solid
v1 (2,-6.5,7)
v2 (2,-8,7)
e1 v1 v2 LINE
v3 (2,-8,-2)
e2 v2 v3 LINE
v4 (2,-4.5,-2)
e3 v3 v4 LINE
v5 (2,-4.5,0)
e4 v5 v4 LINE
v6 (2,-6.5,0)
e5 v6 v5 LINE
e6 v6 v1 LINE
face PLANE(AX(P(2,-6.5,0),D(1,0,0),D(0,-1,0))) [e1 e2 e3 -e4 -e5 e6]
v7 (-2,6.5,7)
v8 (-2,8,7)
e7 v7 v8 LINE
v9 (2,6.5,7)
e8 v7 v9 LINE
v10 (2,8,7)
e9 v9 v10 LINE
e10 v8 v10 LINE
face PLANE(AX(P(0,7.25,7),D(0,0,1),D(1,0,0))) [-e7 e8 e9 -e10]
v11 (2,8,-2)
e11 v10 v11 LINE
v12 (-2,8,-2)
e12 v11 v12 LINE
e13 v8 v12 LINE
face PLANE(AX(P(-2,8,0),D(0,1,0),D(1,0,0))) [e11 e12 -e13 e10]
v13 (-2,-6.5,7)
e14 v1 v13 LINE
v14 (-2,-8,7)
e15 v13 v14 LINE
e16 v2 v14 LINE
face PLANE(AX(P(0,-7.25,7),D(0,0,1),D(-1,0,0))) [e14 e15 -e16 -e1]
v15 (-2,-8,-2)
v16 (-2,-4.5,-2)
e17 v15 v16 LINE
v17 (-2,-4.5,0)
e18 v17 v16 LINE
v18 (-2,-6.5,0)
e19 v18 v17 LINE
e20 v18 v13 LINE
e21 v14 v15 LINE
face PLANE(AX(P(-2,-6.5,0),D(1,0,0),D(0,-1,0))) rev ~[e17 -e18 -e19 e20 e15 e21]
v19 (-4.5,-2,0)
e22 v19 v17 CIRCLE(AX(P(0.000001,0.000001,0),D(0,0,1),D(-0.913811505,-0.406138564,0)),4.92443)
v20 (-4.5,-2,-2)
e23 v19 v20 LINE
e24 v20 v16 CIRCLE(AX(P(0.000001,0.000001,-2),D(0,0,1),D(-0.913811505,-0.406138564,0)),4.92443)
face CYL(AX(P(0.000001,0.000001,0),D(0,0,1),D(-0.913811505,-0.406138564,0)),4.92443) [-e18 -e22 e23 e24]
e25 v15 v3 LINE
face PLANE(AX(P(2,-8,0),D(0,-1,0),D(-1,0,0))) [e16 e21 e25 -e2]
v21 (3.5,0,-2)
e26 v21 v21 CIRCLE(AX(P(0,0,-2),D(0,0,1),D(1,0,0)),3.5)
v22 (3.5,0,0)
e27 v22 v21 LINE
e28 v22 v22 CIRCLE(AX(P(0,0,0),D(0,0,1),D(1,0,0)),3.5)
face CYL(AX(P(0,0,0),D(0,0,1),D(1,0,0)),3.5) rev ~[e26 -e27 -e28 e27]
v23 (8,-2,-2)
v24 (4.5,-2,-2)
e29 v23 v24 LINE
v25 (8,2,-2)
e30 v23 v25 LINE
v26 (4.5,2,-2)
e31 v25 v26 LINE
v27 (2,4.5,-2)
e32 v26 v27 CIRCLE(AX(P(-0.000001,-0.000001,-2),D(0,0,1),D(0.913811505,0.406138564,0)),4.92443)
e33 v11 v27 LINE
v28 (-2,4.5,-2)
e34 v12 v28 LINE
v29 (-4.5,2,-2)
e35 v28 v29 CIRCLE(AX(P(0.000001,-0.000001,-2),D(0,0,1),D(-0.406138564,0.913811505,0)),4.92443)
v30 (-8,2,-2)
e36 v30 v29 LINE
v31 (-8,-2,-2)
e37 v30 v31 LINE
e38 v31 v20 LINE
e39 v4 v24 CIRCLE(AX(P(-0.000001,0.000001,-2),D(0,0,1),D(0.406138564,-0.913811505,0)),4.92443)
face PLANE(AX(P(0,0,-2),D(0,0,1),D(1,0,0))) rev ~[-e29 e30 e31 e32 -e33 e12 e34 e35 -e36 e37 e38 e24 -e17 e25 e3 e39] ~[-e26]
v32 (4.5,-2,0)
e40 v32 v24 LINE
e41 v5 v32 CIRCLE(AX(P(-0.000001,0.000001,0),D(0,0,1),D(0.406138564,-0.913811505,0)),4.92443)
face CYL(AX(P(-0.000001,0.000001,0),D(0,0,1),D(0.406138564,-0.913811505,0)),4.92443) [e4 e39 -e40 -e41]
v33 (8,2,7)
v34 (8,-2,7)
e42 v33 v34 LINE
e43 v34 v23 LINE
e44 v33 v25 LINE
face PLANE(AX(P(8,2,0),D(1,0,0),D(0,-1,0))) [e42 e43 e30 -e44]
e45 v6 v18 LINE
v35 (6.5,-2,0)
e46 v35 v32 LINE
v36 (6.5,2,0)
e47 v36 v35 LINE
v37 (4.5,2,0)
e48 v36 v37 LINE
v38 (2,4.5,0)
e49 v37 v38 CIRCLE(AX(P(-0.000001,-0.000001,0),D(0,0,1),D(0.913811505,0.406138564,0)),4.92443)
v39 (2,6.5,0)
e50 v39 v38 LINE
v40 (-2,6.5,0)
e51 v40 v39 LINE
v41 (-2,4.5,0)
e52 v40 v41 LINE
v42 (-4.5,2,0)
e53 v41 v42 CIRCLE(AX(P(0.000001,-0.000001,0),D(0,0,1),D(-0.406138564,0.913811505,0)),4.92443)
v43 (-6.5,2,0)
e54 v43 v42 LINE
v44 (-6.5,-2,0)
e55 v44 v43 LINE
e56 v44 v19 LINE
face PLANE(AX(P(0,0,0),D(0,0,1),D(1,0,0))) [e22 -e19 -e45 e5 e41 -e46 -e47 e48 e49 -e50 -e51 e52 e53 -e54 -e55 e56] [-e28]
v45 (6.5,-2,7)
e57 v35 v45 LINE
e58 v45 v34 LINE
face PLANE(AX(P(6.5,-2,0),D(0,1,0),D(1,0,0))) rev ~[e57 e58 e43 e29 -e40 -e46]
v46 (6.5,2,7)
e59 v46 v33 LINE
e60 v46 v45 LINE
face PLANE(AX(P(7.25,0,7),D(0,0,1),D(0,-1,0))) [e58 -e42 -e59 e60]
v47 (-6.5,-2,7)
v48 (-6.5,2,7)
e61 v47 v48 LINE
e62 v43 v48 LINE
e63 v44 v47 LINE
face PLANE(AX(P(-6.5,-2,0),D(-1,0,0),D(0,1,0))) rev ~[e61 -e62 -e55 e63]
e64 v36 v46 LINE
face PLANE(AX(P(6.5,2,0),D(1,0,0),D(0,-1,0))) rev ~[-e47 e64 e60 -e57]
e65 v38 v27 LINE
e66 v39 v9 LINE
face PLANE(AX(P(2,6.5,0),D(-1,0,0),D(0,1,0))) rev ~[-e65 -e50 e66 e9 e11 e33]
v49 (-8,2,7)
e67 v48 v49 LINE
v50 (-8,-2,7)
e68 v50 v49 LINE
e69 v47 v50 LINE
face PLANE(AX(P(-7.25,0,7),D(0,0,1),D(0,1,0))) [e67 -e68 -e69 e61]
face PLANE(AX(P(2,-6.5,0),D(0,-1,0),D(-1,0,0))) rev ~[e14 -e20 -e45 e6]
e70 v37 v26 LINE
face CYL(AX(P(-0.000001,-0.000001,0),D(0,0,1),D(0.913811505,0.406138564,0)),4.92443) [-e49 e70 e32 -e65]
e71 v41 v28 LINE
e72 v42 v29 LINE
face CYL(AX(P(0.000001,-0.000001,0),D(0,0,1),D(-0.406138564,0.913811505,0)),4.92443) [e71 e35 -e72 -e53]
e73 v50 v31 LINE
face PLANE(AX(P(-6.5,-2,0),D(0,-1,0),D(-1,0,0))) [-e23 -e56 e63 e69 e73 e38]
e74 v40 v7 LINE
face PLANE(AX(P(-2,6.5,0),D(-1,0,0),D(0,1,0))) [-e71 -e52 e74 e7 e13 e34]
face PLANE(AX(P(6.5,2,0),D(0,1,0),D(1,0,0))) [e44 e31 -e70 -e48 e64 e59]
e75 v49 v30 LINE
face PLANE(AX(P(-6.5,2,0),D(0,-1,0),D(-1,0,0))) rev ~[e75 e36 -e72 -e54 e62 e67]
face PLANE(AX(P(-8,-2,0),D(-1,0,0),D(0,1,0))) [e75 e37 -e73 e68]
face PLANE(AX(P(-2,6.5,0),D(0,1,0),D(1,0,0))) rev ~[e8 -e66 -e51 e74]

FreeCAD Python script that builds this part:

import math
import FreeCAD as App
import Part
import Sketcher

V = App.Vector


def add_polygon(sketch, points):
    """Adds a closed chain of lines whose ends are joined by coincident constraints."""
    first, n = sketch.GeometryCount, len(points)
    for a, b in zip(points, points[1:] + points[:1]):
        sketch.addGeometry(Part.LineSegment(App.Vector(*a, 0), App.Vector(*b, 0)), False)
    for i in range(n):
        sketch.addConstraint(Sketcher.Constraint("Coincident", first + i, 2, first + (i + 1) % n, 1))

doc = App.newDocument("Part")
body = doc.addObject("PartDesign::Body", "Body")

# Sketch on XY plane
sketch1 = body.newObject("Sketcher::SketchObject", "Sketch")
sketch1.AttachmentSupport = (doc.getObject("XY_Plane"), [""])
sketch1.MapMode = "FlatFace"
sketch1.addGeometry(Part.LineSegment(V(-8, 2, 0), V(-8, -2, 0)), False)
sketch1.addGeometry(Part.LineSegment(V(-8, -2, 0), V(-4.5, -2, 0)), False)
sketch1.addGeometry(Part.ArcOfCircle(Part.Circle(V(0, 0, 0), V(0, 0, 1), 4.9), math.radians(-156), math.radians(-114)), False)
sketch1.addGeometry(Part.LineSegment(V(-2, -4.5, 0), V(-2, -8, 0)), False)
sketch1.addGeometry(Part.LineSegment(V(-2, -8, 0), V(2, -8, 0)), False)
sketch1.addGeometry(Part.LineSegment(V(2, -8, 0), V(2, -4.5, 0)), False)
sketch1.addGeometry(Part.ArcOfCircle(Part.Circle(V(0, 0, 0), V(0, 0, 1), 4.9), math.radians(-66), math.radians(-24)), False)
sketch1.addGeometry(Part.LineSegment(V(4.5, -2, 0), V(8, -2, 0)), False)
sketch1.addGeometry(Part.LineSegment(V(8, -2, 0), V(8, 2, 0)), False)
sketch1.addGeometry(Part.LineSegment(V(8, 2, 0), V(4.5, 2, 0)), False)
sketch1.addGeometry(Part.ArcOfCircle(Part.Circle(V(0, 0, 0), V(0, 0, 1), 4.9), math.radians(24), math.radians(66)), False)
sketch1.addGeometry(Part.LineSegment(V(2, 4.5, 0), V(2, 8, 0)), False)
sketch1.addGeometry(Part.LineSegment(V(2, 8, 0), V(-2, 8, 0)), False)
sketch1.addGeometry(Part.LineSegment(V(-2, 8, 0), V(-2, 4.5, 0)), False)
sketch1.addGeometry(Part.ArcOfCircle(Part.Circle(V(0, 0, 0), V(0, 0, 1), 4.9), math.radians(114), math.radians(156)), False)
sketch1.addGeometry(Part.LineSegment(V(-4.5, 2, 0), V(-8, 2, 0)), False)
sketch1.addGeometry(Part.Circle(V(0, 0, 0), V(0, 0, 1), 3.5), False)
sketch1.addConstraint(Sketcher.Constraint("Coincident", 0, 2, 1, 1))
sketch1.addConstraint(Sketcher.Constraint("Coincident", 1, 2, 2, 1))
sketch1.addConstraint(Sketcher.Constraint("Coincident", 2, 2, 3, 1))
sketch1.addConstraint(Sketcher.Constraint("Coincident", 3, 2, 4, 1))
sketch1.addConstraint(Sketcher.Constraint("Coincident", 4, 2, 5, 1))
sketch1.addConstraint(Sketcher.Constraint("Coincident", 5, 2, 6, 1))
sketch1.addConstraint(Sketcher.Constraint("Coincident", 6, 2, 7, 1))
sketch1.addConstraint(Sketcher.Constraint("Coincident", 7, 2, 8, 1))
sketch1.addConstraint(Sketcher.Constraint("Coincident", 8, 2, 9, 1))
sketch1.addConstraint(Sketcher.Constraint("Coincident", 9, 2, 10, 1))
sketch1.addConstraint(Sketcher.Constraint("Coincident", 10, 2, 11, 1))
sketch1.addConstraint(Sketcher.Constraint("Coincident", 11, 2, 12, 1))
sketch1.addConstraint(Sketcher.Constraint("Coincident", 12, 2, 13, 1))
sketch1.addConstraint(Sketcher.Constraint("Coincident", 13, 2, 14, 1))
sketch1.addConstraint(Sketcher.Constraint("Coincident", 14, 2, 15, 1))
sketch1.addConstraint(Sketcher.Constraint("Coincident", 15, 2, 0, 1))
sketch1.addConstraint(Sketcher.Constraint("Vertical", 0))
sketch1.addConstraint(Sketcher.Constraint("Horizontal", 1))
sketch1.addConstraint(Sketcher.Constraint("Vertical", 3))
sketch1.addConstraint(Sketcher.Constraint("Horizontal", 4))
sketch1.addConstraint(Sketcher.Constraint("Vertical", 5))
sketch1.addConstraint(Sketcher.Constraint("Horizontal", 7))
sketch1.addConstraint(Sketcher.Constraint("Vertical", 8))
sketch1.addConstraint(Sketcher.Constraint("Horizontal", 9))
sketch1.addConstraint(Sketcher.Constraint("Vertical", 11))
sketch1.addConstraint(Sketcher.Constraint("Horizontal", 12))
sketch1.addConstraint(Sketcher.Constraint("Vertical", 13))
sketch1.addConstraint(Sketcher.Constraint("Horizontal", 15))
sketch1.addConstraint(Sketcher.Constraint("Coincident", 2, 3, -1, 1))
sketch1.addConstraint(Sketcher.Constraint("Coincident", 6, 3, -1, 1))
sketch1.addConstraint(Sketcher.Constraint("Coincident", 10, 3, -1, 1))
sketch1.addConstraint(Sketcher.Constraint("Coincident", 14, 3, -1, 1))
sketch1.addConstraint(Sketcher.Constraint("Coincident", 16, 3, -1, 1))
sketch1.addConstraint(Sketcher.Constraint("Equal", 2, 6))
sketch1.addConstraint(Sketcher.Constraint("Equal", 6, 10))
sketch1.addConstraint(Sketcher.Constraint("Equal", 10, 14))
sketch1.addConstraint(Sketcher.Constraint("Symmetric", 0, 2, 8, 2, -1, 1))
sketch1.addConstraint(Sketcher.Constraint("Symmetric", 3, 2, 11, 2, -1, 1))
sketch1.addConstraint(Sketcher.Constraint("Horizontal", 2, 2, 5, 2))
sketch1.addConstraint(Sketcher.Constraint("Horizontal", 1, 2, 6, 2))
sketch1.addConstraint(Sketcher.Constraint("Horizontal", 10, 2, 13, 2))
sketch1.addConstraint(Sketcher.Constraint("Horizontal", 9, 2, 14, 2))
sketch1.addConstraint(Sketcher.Constraint("Equal", 12, 0))
sketch1.addConstraint(Sketcher.Constraint("Equal", 15, 3))
sketch1.addConstraint(Sketcher.Constraint("Diameter", 16, 7.0))
sketch1.addConstraint(Sketcher.Constraint("DistanceX", 4, 1, 4, 2, 4.0))
sketch1.addConstraint(Sketcher.Constraint("DistanceX", 1, 1, 1, 2, 3.5))
sketch1.addConstraint(Sketcher.Constraint("DistanceX", 0, 2, -1, 1, 8.0))
pad1 = body.newObject("PartDesign::Pad", "Pad")
pad1.Profile = sketch1
pad1.Length = 2
pad1.Reversed = True

# Sketch on XY plane
sketch2 = body.newObject("Sketcher::SketchObject", "Sketch001")
sketch2.AttachmentSupport = (doc.getObject("XY_Plane"), [""])
sketch2.MapMode = "FlatFace"
add_polygon(sketch2, [(-2, 8), (-2, 6.5), (2, 6.5), (2, 8)])  # lines 0-3
sketch2.addConstraint(Sketcher.Constraint("Vertical", 0))
sketch2.addConstraint(Sketcher.Constraint("Horizontal", 1))
sketch2.addConstraint(Sketcher.Constraint("Vertical", 2))
sketch2.addConstraint(Sketcher.Constraint("Horizontal", 3))
sketch2.addConstraint(Sketcher.Constraint("DistanceX", 1, 1, 1, 2, 4.0))
sketch2.addConstraint(Sketcher.Constraint("DistanceY", 0, 2, 0, 1, 1.5))
sketch2.addConstraint(Sketcher.Constraint("DistanceX", 0, 2, -1, 1, 2.0))
sketch2.addConstraint(Sketcher.Constraint("DistanceY", -1, 1, 2, 2, 8.0))
pad2 = body.newObject("PartDesign::Pad", "Pad001")
pad2.Profile = sketch2
pad2.Length = 7
doc.recompute()

polarpattern = body.newObject("PartDesign::PolarPattern", "PolarPattern")
polarpattern.Originals = [pad2]
polarpattern.Axis = (doc.getObject("Z_Axis"), [""])
polarpattern.Angle = 360
polarpattern.Occurrences = 4
body.Tip = polarpattern

doc.recompute()
